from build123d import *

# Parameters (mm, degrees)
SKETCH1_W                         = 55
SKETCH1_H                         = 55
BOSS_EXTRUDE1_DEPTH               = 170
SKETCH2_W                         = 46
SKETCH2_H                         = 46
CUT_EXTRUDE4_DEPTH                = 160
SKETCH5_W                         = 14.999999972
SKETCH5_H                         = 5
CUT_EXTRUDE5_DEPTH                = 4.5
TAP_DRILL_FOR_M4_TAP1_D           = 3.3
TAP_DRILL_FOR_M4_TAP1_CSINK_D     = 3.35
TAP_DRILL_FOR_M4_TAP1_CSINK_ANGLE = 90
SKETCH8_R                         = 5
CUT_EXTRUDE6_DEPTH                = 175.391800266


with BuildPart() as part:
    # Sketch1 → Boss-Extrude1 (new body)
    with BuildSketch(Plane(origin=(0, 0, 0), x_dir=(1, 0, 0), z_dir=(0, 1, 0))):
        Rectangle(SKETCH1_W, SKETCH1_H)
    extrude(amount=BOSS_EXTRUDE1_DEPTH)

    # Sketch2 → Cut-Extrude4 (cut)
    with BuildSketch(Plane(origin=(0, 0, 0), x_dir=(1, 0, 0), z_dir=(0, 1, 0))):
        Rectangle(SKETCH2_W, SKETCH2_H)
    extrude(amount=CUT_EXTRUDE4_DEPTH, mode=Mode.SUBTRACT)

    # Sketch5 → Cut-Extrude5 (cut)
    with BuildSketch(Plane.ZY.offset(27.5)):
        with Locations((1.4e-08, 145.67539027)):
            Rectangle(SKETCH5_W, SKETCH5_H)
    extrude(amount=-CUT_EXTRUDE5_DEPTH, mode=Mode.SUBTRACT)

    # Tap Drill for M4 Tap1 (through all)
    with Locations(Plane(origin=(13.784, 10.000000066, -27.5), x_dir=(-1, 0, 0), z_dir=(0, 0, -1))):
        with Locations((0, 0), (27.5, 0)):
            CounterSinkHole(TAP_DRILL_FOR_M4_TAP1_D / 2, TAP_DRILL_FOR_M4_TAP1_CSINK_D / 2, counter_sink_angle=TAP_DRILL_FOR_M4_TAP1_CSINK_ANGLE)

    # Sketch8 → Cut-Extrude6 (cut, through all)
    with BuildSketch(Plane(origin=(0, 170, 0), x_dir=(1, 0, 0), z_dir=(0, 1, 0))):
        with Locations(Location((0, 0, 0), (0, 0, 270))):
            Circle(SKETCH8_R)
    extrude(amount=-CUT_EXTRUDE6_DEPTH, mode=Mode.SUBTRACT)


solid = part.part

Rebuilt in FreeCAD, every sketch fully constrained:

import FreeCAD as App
import Part
import Sketcher

V = App.Vector
Q = App.Units.Quantity

doc = App.newDocument("Part")
body = doc.addObject("PartDesign::Body", "Body")

sketch1 = body.newObject("Sketcher::SketchObject", "Sketch")
sketch1.AttachmentSupport = (doc.getObject("XZ_Plane"), [""])
sketch1.MapMode = "FlatFace"
sketch1.addGeometry([
    Part.LineSegment(V(-28, -28, 0), V(-28, 28, 0)),
    Part.LineSegment(V(-28, 28, 0), V(28, 28, 0)),
    Part.LineSegment(V(28, 28, 0), V(28, -28, 0)),
    Part.LineSegment(V(28, -28, 0), V(-28, -28, 0)),
], False)
sketch1.addConstraint([
    Sketcher.Constraint("Coincident", 0, 2, 1, 1),
    Sketcher.Constraint("Coincident", 1, 2, 2, 1),
    Sketcher.Constraint("Coincident", 2, 2, 3, 1),
    Sketcher.Constraint("Coincident", 3, 2, 0, 1),
    Sketcher.Constraint("Vertical", 0),
    Sketcher.Constraint("Horizontal", 1),
    Sketcher.Constraint("Vertical", 2),
    Sketcher.Constraint("Horizontal", 3),
    Sketcher.Constraint("Symmetric", 0, 2, 2, 2, -1, 1),
    Sketcher.Constraint("Equal", 3, 0),
    Sketcher.Constraint("DistanceX", 1, 1, 1, 2, Q("55 mm")),
])
pad1 = body.newObject("PartDesign::Pad", "Pad")
pad1.Profile = sketch1
pad1.Length = 170
pad1.Reversed = True

sketch2 = body.newObject("Sketcher::SketchObject", "Sketch001")
sketch2.AttachmentSupport = (doc.getObject("XZ_Plane"), [""])
sketch2.MapMode = "FlatFace"
sketch2.addGeometry([
    Part.LineSegment(V(-23, -23, 0), V(-23, 23, 0)),
    Part.LineSegment(V(-23, 23, 0), V(23, 23, 0)),
    Part.LineSegment(V(23, 23, 0), V(23, -23, 0)),
    Part.LineSegment(V(23, -23, 0), V(-23, -23, 0)),
], False)
sketch2.addConstraint([
    Sketcher.Constraint("Coincident", 0, 2, 1, 1),
    Sketcher.Constraint("Coincident", 1, 2, 2, 1),
    Sketcher.Constraint("Coincident", 2, 2, 3, 1),
    Sketcher.Constraint("Coincident", 3, 2, 0, 1),
    Sketcher.Constraint("Vertical", 0),
    Sketcher.Constraint("Horizontal", 1),
    Sketcher.Constraint("Vertical", 2),
    Sketcher.Constraint("Horizontal", 3),
    Sketcher.Constraint("Symmetric", 0, 2, 2, 2, -1, 1),
    Sketcher.Constraint("Equal", 3, 0),
    Sketcher.Constraint("DistanceX", 1, 1, 1, 2, Q("46 mm")),
])
pocket1 = body.newObject("PartDesign::Pocket", "Pocket")
pocket1.Profile = sketch2
pocket1.Length = 160

sketch3 = body.newObject("Sketcher::SketchObject", "Sketch002")
sketch3.AttachmentSupport = (doc.getObject("YZ_Plane"), [""])
sketch3.MapMode = "FlatFace"
sketch3.AttachmentOffset = App.Placement(V(0, 0, -27.5), App.Rotation())
sketch3.addGeometry([
    Part.LineSegment(V(148, -7, 0), V(143, -7, 0)),
    Part.LineSegment(V(143, -7, 0), V(143, 8, 0)),
    Part.LineSegment(V(143, 8, 0), V(148, 8, 0)),
    Part.LineSegment(V(148, 8, 0), V(148, -7, 0)),
], False)
sketch3.addConstraint([
    Sketcher.Constraint("Coincident", 0, 2, 1, 1),
    Sketcher.Constraint("Coincident", 1, 2, 2, 1),
    Sketcher.Constraint("Coincident", 2, 2, 3, 1),
    Sketcher.Constraint("Coincident", 3, 2, 0, 1),
    Sketcher.Constraint("Horizontal", 0),
    Sketcher.Constraint("Vertical", 1),
    Sketcher.Constraint("Horizontal", 2),
    Sketcher.Constraint("Vertical", 3),
    Sketcher.Constraint("DistanceX", 0, 2, 0, 1, Q("5 mm")),
    Sketcher.Constraint("DistanceY", 1, 1, 1, 2, Q("15 mm")),
    Sketcher.Constraint("DistanceY", 0, 2, -1, 1, Q("7.5 mm")),
    Sketcher.Constraint("DistanceX", -1, 1, 0, 2, Q("143.17539 mm")),
])
pocket2 = body.newObject("PartDesign::Pocket", "Pocket001")
pocket2.Profile = sketch3
pocket2.Length = 4.5
pocket2.Reversed = True

sketch4 = body.newObject("Sketcher::SketchObject", "Sketch003")
sketch4.AttachmentSupport = (doc.getObject("XY_Plane"), [""])
sketch4.MapMode = "FlatFace"
sketch4.AttachmentOffset = App.Placement(V(0, 0, -27.5), App.Rotation())
sketch4.addGeometry([
    Part.Circle(V(13.8, 10, 0), V(0, 0, 1), 1.6),
    Part.Circle(V(-13.7, 10, 0), V(0, 0, 1), 1.6),
], False)
sketch4.addConstraint([
    Sketcher.Constraint("Equal", 0, 1),
    Sketcher.Constraint("Horizontal", 0, 3, 1, 3),
    Sketcher.Constraint("Diameter", 0, Q("3.3 mm")),
    Sketcher.Constraint("DistanceY", -1, 1, 0, 3, Q("10 mm")),
    Sketcher.Constraint("DistanceX", 1, 3, 0, 3, Q("27.5 mm")),
    Sketcher.Constraint("DistanceX", -1, 1, 0, 3, Q("13.784 mm")),
])
doc.recompute()
hole = body.newObject("PartDesign::Hole", "Hole")
hole.Profile = sketch4
hole.ThreadType = "None"
hole.Diameter = 3.3
hole.DepthType = "ThroughAll"
hole.HoleCutType = "Countersink"
hole.HoleCutDiameter = 3.35
hole.HoleCutCountersinkAngle = 90
hole.Reversed = True

sketch5 = body.newObject("Sketcher::SketchObject", "Sketch004")
sketch5.AttachmentSupport = (doc.getObject("XZ_Plane"), [""])
sketch5.MapMode = "FlatFace"
sketch5.AttachmentOffset = App.Placement(V(0, 0, -170), App.Rotation())
sketch5.addGeometry(Part.Circle(V(0, 0, 0), V(0, 0, 1), 5), False)
sketch5.addConstraint([
    Sketcher.Constraint("Coincident", 0, 3, -1, 1),
    Sketcher.Constraint("Diameter", 0, Q("10 mm")),
])
pocket3 = body.newObject("PartDesign::Pocket", "Pocket002")
pocket3.Profile = sketch5
pocket3.Type = "ThroughAll"
pocket3.Reversed = True

doc.recompute()
